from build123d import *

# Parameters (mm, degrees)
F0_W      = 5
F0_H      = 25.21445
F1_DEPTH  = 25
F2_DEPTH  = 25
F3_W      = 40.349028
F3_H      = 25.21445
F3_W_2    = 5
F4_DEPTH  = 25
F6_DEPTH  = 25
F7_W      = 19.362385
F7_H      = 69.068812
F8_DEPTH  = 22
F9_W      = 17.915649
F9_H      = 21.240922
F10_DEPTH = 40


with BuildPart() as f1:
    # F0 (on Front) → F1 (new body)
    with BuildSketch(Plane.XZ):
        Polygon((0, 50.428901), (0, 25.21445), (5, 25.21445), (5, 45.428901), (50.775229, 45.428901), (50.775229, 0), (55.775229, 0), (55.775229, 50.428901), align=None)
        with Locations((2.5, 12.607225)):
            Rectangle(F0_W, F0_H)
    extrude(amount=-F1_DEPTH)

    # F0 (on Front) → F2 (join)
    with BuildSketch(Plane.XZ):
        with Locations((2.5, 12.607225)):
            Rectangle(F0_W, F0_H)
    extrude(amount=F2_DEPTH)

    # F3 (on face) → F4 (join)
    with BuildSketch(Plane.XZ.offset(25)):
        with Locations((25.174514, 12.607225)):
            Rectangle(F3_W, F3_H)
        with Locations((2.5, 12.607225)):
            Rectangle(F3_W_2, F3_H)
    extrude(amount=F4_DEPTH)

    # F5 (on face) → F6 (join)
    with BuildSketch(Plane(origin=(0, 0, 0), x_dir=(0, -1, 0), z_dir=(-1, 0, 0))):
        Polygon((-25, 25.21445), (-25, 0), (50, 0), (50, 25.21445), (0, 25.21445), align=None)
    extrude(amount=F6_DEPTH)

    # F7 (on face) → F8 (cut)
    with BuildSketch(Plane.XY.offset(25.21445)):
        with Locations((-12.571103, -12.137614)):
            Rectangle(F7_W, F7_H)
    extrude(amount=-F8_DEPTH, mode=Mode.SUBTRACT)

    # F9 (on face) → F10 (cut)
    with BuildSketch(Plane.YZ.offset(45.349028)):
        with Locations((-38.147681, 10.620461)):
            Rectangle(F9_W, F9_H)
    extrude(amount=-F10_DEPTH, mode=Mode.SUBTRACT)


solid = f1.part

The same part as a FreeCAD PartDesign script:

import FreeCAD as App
import Part
import Sketcher

V = App.Vector

doc = App.newDocument("Part")
params = doc.addObject("Spreadsheet::Sheet", "Params")
for row, (alias, value) in enumerate([
    ("sketch1_width", "5 mm"),
    ("pad1_length", "25 mm"),
    ("sketch2_width", "5 mm"),
    ("pad2_length", "25 mm"),
    ("pad3_length", "25 mm"),
    ("sketch4_width", "75 mm"),
    ("pad4_length", "25 mm"),
    ("pocket1_length", "22 mm"),
    ("pocket2_length", "40 mm"),
], start=1):
    params.set(f"A{row}", alias)
    params.set(f"B{row}", "=" + value)
    params.setAlias(f"B{row}", alias)

body = doc.addObject("PartDesign::Body", "Body")

sketch1 = body.newObject("Sketcher::SketchObject", "Sketch")
sketch1.AttachmentSupport = (doc.getObject("XZ_Plane"), [""])
sketch1.MapMode = "FlatFace"
sketch1.addGeometry([
    Part.LineSegment(V(0, 50.428901, 0), V(0, 0, 0)),
    Part.LineSegment(V(0, 0, 0), V(5, 0, 0)),
    Part.LineSegment(V(5, 0, 0), V(5, 45.428901, 0)),
    Part.LineSegment(V(5, 45.428901, 0), V(50.775229, 45.428901, 0)),
    Part.LineSegment(V(50.775229, 45.428901, 0), V(50.775229, 0, 0)),
    Part.LineSegment(V(50.775229, 0, 0), V(55.775229, 0, 0)),
    Part.LineSegment(V(55.775229, 0, 0), V(55.775229, 50.428901, 0)),
    Part.LineSegment(V(55.775229, 50.428901, 0), V(0, 50.428901, 0)),
], False)
sketch1.addConstraint([
    Sketcher.Constraint("Coincident", 0, 2, 1, 1),
    Sketcher.Constraint("Coincident", 1, 2, 2, 1),
    Sketcher.Constraint("Coincident", 2, 2, 3, 1),
    Sketcher.Constraint("Coincident", 3, 2, 4, 1),
    Sketcher.Constraint("Coincident", 4, 2, 5, 1),
    Sketcher.Constraint("Coincident", 5, 2, 6, 1),
    Sketcher.Constraint("Coincident", 6, 2, 7, 1),
    Sketcher.Constraint("Coincident", 7, 2, 0, 1),
    Sketcher.Constraint("Vertical", 0),
    Sketcher.Constraint("Horizontal", 1),
    Sketcher.Constraint("Vertical", 2),
    Sketcher.Constraint("Horizontal", 3),
    Sketcher.Constraint("Vertical", 4),
    Sketcher.Constraint("Horizontal", 5),
    Sketcher.Constraint("Vertical", 6),
    Sketcher.Constraint("Horizontal", 7),
    Sketcher.Constraint("Coincident", 0, 2, -1, 1),
    Sketcher.Constraint("PointOnObject", 4, 2, -1),
    Sketcher.Constraint("Equal", 1, 5),
    Sketcher.Constraint("DistanceX", 1, 1, 1, 2, 5.0),
    Sketcher.Constraint("DistanceY", 3, 2, 6, 2, 5.0),
    Sketcher.Constraint("DistanceY", 0, 2, 0, 1, 50.428901),
    Sketcher.Constraint("DistanceX", 3, 1, 3, 2, 45.775229),
])
sketch1.setExpression("Constraints[19]", "Params.sketch1_width")
pad1 = body.newObject("PartDesign::Pad", "Pad")
pad1.Profile = sketch1
pad1.setExpression("Length", "Params.pad1_length")
pad1.Reversed = True

sketch2 = body.newObject("Sketcher::SketchObject", "Sketch001")
sketch2.AttachmentSupport = (doc.getObject("XZ_Plane"), [""])
sketch2.MapMode = "FlatFace"
sketch2.addGeometry([
    Part.LineSegment(V(0, 25.21445, 0), V(0, 0, 0)),
    Part.LineSegment(V(0, 0, 0), V(5, 0, 0)),
    Part.LineSegment(V(5, 0, 0), V(5, 25.21445, 0)),
    Part.LineSegment(V(5, 25.21445, 0), V(0, 25.21445, 0)),
], False)
sketch2.addConstraint([
    Sketcher.Constraint("Coincident", 0, 2, 1, 1),
    Sketcher.Constraint("Coincident", 1, 2, 2, 1),
    Sketcher.Constraint("Coincident", 2, 2, 3, 1),
    Sketcher.Constraint("Coincident", 3, 2, 0, 1),
    Sketcher.Constraint("Vertical", 0),
    Sketcher.Constraint("Horizontal", 1),
    Sketcher.Constraint("Vertical", 2),
    Sketcher.Constraint("Horizontal", 3),
    Sketcher.Constraint("Coincident", 0, 2, -1, 1),
    Sketcher.Constraint("DistanceX", 1, 1, 1, 2, 5.0),
    Sketcher.Constraint("DistanceY", 0, 2, 0, 1, 25.21445),
])
sketch2.setExpression("Constraints[9]", "Params.sketch2_width")
pad2 = body.newObject("PartDesign::Pad", "Pad001")
pad2.Profile = sketch2
pad2.setExpression("Length", "Params.pad2_length")

sketch3 = body.newObject("Sketcher::SketchObject", "Sketch002")
sketch3.AttachmentSupport = (doc.getObject("XZ_Plane"), [""])
sketch3.MapMode = "FlatFace"
sketch3.AttachmentOffset = App.Placement(V(0, 0, 25), App.Rotation())
sketch3.addGeometry([
    Part.LineSegment(V(45.349028, 0, 0), V(45.349028, 25.21445, 0)),
    Part.LineSegment(V(45.349028, 25.21445, 0), V(0, 25.21445, 0)),
    Part.LineSegment(V(0, 25.21445, 0), V(0, 0, 0)),
    Part.LineSegment(V(0, 0, 0), V(45.349028, 0, 0)),
], False)
sketch3.addConstraint([
    Sketcher.Constraint("Coincident", 0, 2, 1, 1),
    Sketcher.Constraint("Coincident", 1, 2, 2, 1),
    Sketcher.Constraint("Coincident", 2, 2, 3, 1),
    Sketcher.Constraint("Coincident", 3, 2, 0, 1),
    Sketcher.Constraint("Vertical", 0),
    Sketcher.Constraint("Horizontal", 1),
    Sketcher.Constraint("Vertical", 2),
    Sketcher.Constraint("Horizontal", 3),
    Sketcher.Constraint("Coincident", 2, 2, -1, 1),
    Sketcher.Constraint("DistanceY", 0, 1, 0, 2, 25.21445),
    Sketcher.Constraint("DistanceX", 1, 2, 1, 1, 45.349028),
])
pad3 = body.newObject("PartDesign::Pad", "Pad002")
pad3.Profile = sketch3
pad3.setExpression("Length", "Params.pad3_length")

sketch4 = body.newObject("Sketcher::SketchObject", "Sketch003")
sketch4.AttachmentSupport = (doc.getObject("YZ_Plane"), [""])
sketch4.MapMode = "FlatFace"
sketch4.addGeometry([
    Part.LineSegment(V(25, 25.21445, 0), V(25, 0, 0)),
    Part.LineSegment(V(25, 0, 0), V(-50, 0, 0)),
    Part.LineSegment(V(-50, 0, 0), V(-50, 25.21445, 0)),
    Part.LineSegment(V(-50, 25.21445, 0), V(25, 25.21445, 0)),
], False)
sketch4.addConstraint([
    Sketcher.Constraint("Coincident", 0, 2, 1, 1),
    Sketcher.Constraint("Coincident", 1, 2, 2, 1),
    Sketcher.Constraint("Coincident", 2, 2, 3, 1),
    Sketcher.Constraint("Coincident", 3, 2, 0, 1),
    Sketcher.Constraint("Vertical", 0),
    Sketcher.Constraint("Horizontal", 1),
    Sketcher.Constraint("Vertical", 2),
    Sketcher.Constraint("Horizontal", 3),
    Sketcher.Constraint("PointOnObject", 0, 2, -1),
    Sketcher.Constraint("DistanceX", 1, 2, 1, 1, 75.0),
    Sketcher.Constraint("DistanceX", -1, 1, 0, 2, 25.0),
    Sketcher.Constraint("DistanceY", 0, 2, 0, 1, 25.21445),
])
sketch4.setExpression("Constraints[9]", "Params.sketch4_width")
pad4 = body.newObject("PartDesign::Pad", "Pad003")
pad4.Profile = sketch4
pad4.setExpression("Length", "Params.pad4_length")
pad4.Reversed = True

sketch5 = body.newObject("Sketcher::SketchObject", "Sketch004")
sketch5.AttachmentSupport = (doc.getObject("XY_Plane"), [""])
sketch5.MapMode = "FlatFace"
sketch5.AttachmentOffset = App.Placement(V(0, 0, 25.21445), App.Rotation())
sketch5.addGeometry([
    Part.LineSegment(V(-22.252295, 22.396792, 0), V(-22.252295, -46.67202, 0)),
    Part.LineSegment(V(-22.252295, -46.67202, 0), V(-2.889911, -46.67202, 0)),
    Part.LineSegment(V(-2.889911, -46.67202, 0), V(-2.889911, 22.396792, 0)),
    Part.LineSegment(V(-2.889911, 22.396792, 0), V(-22.252295, 22.396792, 0)),
], False)
sketch5.addConstraint([
    Sketcher.Constraint("Coincident", 0, 2, 1, 1),
    Sketcher.Constraint("Coincident", 1, 2, 2, 1),
    Sketcher.Constraint("Coincident", 2, 2, 3, 1),
    Sketcher.Constraint("Coincident", 3, 2, 0, 1),
    Sketcher.Constraint("Vertical", 0),
    Sketcher.Constraint("Horizontal", 1),
    Sketcher.Constraint("Vertical", 2),
    Sketcher.Constraint("Horizontal", 3),
    Sketcher.Constraint("DistanceX", 1, 1, 1, 2, 19.362385),
    Sketcher.Constraint("DistanceY", 0, 2, 0, 1, 69.068812),
    Sketcher.Constraint("DistanceY", 0, 2, -1, 1, 46.67202),
    Sketcher.Constraint("DistanceX", 1, 2, -1, 1, 2.889911),
])
pocket1 = body.newObject("PartDesign::Pocket", "Pocket")
pocket1.Profile = sketch5
pocket1.setExpression("Length", "Params.pocket1_length")

sketch6 = body.newObject("Sketcher::SketchObject", "Sketch005")
sketch6.AttachmentSupport = (doc.getObject("YZ_Plane"), [""])
sketch6.MapMode = "FlatFace"
sketch6.AttachmentOffset = App.Placement(V(0, 0, 45.349028), App.Rotation())
sketch6.addGeometry([
    Part.LineSegment(V(-47.105505, 21.240922, 0), V(-47.105505, 0, 0)),
    Part.LineSegment(V(-47.105505, 0, 0), V(-29.189857, 0, 0)),
    Part.LineSegment(V(-29.189857, 0, 0), V(-29.189857, 21.240922, 0)),
    Part.LineSegment(V(-29.189857, 21.240922, 0), V(-47.105505, 21.240922, 0)),
], False)
sketch6.addConstraint([
    Sketcher.Constraint("Coincident", 0, 2, 1, 1),
    Sketcher.Constraint("Coincident", 1, 2, 2, 1),
    Sketcher.Constraint("Coincident", 2, 2, 3, 1),
    Sketcher.Constraint("Coincident", 3, 2, 0, 1),
    Sketcher.Constraint("Vertical", 0),
    Sketcher.Constraint("Horizontal", 1),
    Sketcher.Constraint("Vertical", 2),
    Sketcher.Constraint("Horizontal", 3),
    Sketcher.Constraint("PointOnObject", 0, 2, -1),
    Sketcher.Constraint("DistanceX", 1, 1, 1, 2, 17.915649),
    Sketcher.Constraint("DistanceY", 0, 2, 0, 1, 21.240922),
    Sketcher.Constraint("DistanceX", 0, 2, -1, 1, 47.105505),
])
pocket2 = body.newObject("PartDesign::Pocket", "Pocket001")
pocket2.Profile = sketch6
pocket2.setExpression("Length", "Params.pocket2_length")

doc.recompute()
